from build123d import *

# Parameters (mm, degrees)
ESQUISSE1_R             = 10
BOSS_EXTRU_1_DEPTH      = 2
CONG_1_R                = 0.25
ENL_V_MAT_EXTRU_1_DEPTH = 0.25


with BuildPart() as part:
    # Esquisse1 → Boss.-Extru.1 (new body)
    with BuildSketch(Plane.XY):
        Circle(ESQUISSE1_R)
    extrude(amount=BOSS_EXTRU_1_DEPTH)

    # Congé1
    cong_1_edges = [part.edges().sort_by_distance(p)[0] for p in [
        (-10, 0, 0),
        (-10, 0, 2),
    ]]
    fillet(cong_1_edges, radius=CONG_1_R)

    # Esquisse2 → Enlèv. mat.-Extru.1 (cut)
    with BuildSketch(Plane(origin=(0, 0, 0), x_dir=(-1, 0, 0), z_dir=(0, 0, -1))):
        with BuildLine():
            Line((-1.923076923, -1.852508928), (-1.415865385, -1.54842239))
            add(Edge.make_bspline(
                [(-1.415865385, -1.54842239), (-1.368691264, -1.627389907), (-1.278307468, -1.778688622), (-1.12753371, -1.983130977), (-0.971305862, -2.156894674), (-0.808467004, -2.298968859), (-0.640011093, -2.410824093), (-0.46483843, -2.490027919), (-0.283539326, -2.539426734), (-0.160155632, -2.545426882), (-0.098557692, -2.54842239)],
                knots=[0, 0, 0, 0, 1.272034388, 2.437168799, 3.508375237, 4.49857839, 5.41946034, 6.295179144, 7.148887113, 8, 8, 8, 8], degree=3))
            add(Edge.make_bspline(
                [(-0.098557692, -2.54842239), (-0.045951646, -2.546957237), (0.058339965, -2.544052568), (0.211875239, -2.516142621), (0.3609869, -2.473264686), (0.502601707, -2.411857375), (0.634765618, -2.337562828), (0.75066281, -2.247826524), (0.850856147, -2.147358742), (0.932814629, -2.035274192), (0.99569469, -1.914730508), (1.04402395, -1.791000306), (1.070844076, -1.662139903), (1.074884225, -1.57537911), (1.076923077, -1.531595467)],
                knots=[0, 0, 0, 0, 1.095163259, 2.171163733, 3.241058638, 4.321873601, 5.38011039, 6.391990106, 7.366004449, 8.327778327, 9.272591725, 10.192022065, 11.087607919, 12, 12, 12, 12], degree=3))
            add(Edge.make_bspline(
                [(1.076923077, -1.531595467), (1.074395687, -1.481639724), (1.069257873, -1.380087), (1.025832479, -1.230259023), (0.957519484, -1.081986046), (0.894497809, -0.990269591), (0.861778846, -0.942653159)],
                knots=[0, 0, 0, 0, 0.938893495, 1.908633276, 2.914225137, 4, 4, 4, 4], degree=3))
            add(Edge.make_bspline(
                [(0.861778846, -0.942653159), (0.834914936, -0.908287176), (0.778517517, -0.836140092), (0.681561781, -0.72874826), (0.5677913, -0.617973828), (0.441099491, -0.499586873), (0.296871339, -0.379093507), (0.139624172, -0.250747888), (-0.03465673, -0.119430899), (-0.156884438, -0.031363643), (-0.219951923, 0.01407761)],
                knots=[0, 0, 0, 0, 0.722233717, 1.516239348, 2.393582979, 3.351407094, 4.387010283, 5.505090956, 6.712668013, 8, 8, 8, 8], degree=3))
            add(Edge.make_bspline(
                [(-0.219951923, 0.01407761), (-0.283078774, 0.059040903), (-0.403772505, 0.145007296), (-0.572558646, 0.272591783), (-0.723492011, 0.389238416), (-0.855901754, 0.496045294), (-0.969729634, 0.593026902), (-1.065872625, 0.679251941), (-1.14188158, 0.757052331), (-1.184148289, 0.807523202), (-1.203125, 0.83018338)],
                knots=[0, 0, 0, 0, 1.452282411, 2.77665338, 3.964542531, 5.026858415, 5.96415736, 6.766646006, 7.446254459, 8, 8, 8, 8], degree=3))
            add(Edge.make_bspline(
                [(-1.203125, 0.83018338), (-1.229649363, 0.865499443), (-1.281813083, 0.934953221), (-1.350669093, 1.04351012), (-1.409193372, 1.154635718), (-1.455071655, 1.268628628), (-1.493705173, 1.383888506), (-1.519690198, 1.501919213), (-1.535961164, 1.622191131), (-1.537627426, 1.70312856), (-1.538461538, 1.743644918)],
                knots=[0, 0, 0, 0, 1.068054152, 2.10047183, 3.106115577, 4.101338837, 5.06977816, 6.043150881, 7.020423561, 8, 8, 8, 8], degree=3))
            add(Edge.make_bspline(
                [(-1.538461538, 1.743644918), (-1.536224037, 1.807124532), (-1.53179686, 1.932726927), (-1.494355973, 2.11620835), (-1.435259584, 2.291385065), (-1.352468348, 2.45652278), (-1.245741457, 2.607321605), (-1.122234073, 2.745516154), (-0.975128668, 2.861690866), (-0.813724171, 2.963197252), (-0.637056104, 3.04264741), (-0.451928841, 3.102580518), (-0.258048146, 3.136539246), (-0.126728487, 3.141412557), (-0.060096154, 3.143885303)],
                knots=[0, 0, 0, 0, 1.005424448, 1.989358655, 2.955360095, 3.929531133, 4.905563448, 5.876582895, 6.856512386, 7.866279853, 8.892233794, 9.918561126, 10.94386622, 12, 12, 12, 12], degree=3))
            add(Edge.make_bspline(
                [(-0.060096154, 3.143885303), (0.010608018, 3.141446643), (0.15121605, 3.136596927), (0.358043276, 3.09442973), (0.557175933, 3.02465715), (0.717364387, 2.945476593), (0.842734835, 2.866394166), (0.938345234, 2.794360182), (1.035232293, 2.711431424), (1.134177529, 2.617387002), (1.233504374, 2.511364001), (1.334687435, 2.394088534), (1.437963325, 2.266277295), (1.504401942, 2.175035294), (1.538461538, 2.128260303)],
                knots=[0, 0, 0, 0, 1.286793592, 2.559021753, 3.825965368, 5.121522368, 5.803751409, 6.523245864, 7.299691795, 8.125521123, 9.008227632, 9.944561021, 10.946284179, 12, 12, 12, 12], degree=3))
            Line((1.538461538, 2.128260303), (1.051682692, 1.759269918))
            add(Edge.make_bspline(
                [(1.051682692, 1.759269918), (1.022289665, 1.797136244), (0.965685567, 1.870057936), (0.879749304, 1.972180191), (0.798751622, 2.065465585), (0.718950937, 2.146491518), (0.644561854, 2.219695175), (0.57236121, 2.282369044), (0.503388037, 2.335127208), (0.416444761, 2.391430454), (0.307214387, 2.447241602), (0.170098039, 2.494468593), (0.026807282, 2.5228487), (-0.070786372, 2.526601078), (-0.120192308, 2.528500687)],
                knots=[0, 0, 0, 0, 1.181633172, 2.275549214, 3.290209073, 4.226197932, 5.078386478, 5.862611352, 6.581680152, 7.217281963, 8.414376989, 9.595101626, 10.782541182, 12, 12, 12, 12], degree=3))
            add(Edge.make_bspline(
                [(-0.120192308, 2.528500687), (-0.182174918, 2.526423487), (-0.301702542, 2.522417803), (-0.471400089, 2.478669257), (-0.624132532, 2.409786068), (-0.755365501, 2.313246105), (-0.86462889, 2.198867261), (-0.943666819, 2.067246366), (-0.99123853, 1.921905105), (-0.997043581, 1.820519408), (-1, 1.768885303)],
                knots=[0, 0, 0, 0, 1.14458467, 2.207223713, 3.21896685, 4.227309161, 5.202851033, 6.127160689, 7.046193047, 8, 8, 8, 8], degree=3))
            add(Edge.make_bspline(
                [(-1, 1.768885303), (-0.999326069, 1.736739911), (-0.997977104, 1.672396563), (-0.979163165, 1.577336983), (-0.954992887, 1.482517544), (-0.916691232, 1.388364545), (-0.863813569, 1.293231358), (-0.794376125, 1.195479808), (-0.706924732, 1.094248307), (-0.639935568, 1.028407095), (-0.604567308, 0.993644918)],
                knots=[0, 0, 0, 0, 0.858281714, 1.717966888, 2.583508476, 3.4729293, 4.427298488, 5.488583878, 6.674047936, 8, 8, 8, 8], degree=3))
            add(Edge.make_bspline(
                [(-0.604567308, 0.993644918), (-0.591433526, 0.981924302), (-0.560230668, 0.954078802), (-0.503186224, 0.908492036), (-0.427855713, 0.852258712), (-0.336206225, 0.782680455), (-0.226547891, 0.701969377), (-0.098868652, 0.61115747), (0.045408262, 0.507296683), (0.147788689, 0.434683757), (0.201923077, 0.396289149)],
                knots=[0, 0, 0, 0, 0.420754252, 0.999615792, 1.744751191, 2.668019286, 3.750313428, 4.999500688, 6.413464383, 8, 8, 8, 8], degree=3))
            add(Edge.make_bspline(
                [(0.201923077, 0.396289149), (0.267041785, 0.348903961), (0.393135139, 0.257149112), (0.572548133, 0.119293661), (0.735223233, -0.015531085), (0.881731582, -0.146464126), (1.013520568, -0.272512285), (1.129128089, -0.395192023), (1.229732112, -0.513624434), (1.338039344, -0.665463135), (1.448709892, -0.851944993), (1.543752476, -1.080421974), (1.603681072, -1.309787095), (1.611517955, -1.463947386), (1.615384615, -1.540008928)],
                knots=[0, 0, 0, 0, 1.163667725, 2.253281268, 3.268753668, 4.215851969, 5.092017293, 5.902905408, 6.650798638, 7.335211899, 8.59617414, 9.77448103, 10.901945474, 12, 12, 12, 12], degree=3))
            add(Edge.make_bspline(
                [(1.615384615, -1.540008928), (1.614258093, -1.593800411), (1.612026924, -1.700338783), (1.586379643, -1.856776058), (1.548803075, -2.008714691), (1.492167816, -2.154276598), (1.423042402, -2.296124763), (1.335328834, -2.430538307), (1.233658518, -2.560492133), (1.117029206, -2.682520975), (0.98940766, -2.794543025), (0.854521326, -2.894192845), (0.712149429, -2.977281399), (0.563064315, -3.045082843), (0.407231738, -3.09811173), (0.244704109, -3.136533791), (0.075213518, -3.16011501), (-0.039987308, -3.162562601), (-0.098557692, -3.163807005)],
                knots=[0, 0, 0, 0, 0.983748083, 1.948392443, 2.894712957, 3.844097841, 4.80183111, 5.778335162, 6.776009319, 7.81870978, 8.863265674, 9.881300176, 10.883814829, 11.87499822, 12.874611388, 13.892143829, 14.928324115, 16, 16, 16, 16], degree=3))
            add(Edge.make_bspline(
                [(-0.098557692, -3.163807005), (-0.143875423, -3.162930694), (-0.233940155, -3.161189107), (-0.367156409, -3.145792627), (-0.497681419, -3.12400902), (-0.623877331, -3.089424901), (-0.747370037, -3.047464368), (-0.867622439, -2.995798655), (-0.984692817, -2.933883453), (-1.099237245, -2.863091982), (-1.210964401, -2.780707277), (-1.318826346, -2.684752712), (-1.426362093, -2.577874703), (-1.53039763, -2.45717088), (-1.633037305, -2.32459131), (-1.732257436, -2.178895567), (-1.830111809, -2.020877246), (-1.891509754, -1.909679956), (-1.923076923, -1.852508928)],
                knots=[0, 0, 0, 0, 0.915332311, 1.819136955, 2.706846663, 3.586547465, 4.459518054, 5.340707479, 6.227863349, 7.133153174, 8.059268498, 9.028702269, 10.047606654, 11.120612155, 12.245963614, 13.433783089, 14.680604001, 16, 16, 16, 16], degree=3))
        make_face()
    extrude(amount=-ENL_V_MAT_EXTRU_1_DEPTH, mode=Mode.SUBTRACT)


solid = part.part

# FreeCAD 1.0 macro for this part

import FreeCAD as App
import Part
import Sketcher


def edges_at(feature, points):
    """Names of the edges that pass closest to the given points."""
    edges = feature.Shape.Edges
    near = lambda p: min(range(len(edges)), key=lambda i: edges[i].distToShape(Part.Vertex(*p))[0])
    return sorted({f"Edge{near(p) + 1}" for p in points})

doc = App.newDocument("Part")
body = doc.addObject("PartDesign::Body", "Body")

# Sketch on XY plane
sketch1 = body.newObject("Sketcher::SketchObject", "Sketch")
sketch1.AttachmentSupport = (doc.getObject("XY_Plane"), [""])
sketch1.MapMode = "FlatFace"
sketch1.addGeometry(Part.Circle(App.Vector(0, 0, 0), App.Vector(0, 0, 1), 10), False)
sketch1.addConstraint(Sketcher.Constraint("Coincident", 0, 3, -1, 1))
sketch1.addConstraint(Sketcher.Constraint("Diameter", 0, 20.0))
pad1 = body.newObject("PartDesign::Pad", "Pad")
pad1.Profile = sketch1
pad1.Length = 2
doc.recompute()

fillet = body.newObject("PartDesign::Fillet", "Fillet")
fillet.Base = (pad1, edges_at(pad1, [(-10, 0, 0), (-10, 0, 2)]))
fillet.Radius = 0.25

# Sketch on XY plane
sketch2 = body.newObject("Sketcher::SketchObject", "Sketch001")
sketch2.AttachmentSupport = (doc.getObject("XY_Plane"), [""])
sketch2.MapMode = "FlatFace"
sketch2.addGeometry(Part.LineSegment(App.Vector(1.415865, -1.548422, 0), App.Vector(1.923077, -1.852509, 0)), False)
sketch2.addGeometry(Part.BSplineCurve([App.Vector(0.098558, -3.163807, 0), App.Vector(0.143875, -3.162931, 0), App.Vector(0.23394, -3.161189, 0), App.Vector(0.367156, -3.145793, 0), App.Vector(0.497681, -3.124009, 0), App.Vector(0.623877, -3.089425, 0), App.Vector(0.74737, -3.047464, 0), App.Vector(0.867622, -2.995799, 0), App.Vector(0.984693, -2.933883, 0), App.Vector(1.099237, -2.863092, 0), App.Vector(1.210964, -2.780707, 0), App.Vector(1.318826, -2.684753, 0), App.Vector(1.426362, -2.577875, 0), App.Vector(1.530398, -2.457171, 0), App.Vector(1.633037, -2.324591, 0), App.Vector(1.732257, -2.178896, 0), App.Vector(1.830112, -2.020877, 0), App.Vector(1.89151, -1.90968, 0), App.Vector(1.923077, -1.852509, 0)], [4, 1, 1, 1, 1, 1, 1, 1, 1, 1, 1, 1, 1, 1, 1, 1, 4], [0, 0.915332311, 1.819136955, 2.706846663, 3.586547465, 4.459518054, 5.340707479, 6.227863349, 7.133153174, 8.059268498, 9.028702269, 10.047606654, 11.120612155, 12.245963614, 13.433783089, 14.680604001, 16], False, 3, [1, 1, 1, 1, 1, 1, 1, 1, 1, 1, 1, 1, 1, 1, 1, 1, 1, 1, 1], False), False)
sketch2.addGeometry(Part.BSplineCurve([App.Vector(-1.615385, -1.540009, 0), App.Vector(-1.614258, -1.5938, 0), App.Vector(-1.612027, -1.700339, 0), App.Vector(-1.58638, -1.856776, 0), App.Vector(-1.548803, -2.008715, 0), App.Vector(-1.492168, -2.154277, 0), App.Vector(-1.423042, -2.296125, 0), App.Vector(-1.335329, -2.430538, 0), App.Vector(-1.233659, -2.560492, 0), App.Vector(-1.117029, -2.682521, 0), App.Vector(-0.989408, -2.794543, 0), App.Vector(-0.854521, -2.894193, 0), App.Vector(-0.712149, -2.977281, 0), App.Vector(-0.563064, -3.045083, 0), App.Vector(-0.407232, -3.098112, 0), App.Vector(-0.244704, -3.136534, 0), App.Vector(-0.075214, -3.160115, 0), App.Vector(0.039987, -3.162563, 0), App.Vector(0.098558, -3.163807, 0)], [4, 1, 1, 1, 1, 1, 1, 1, 1, 1, 1, 1, 1, 1, 1, 1, 4], [0, 0.983748083, 1.948392443, 2.894712957, 3.844097841, 4.80183111, 5.778335162, 6.776009319, 7.81870978, 8.863265674, 9.881300176, 10.883814829, 11.87499822, 12.874611388, 13.892143829, 14.928324115, 16], False, 3, [1, 1, 1, 1, 1, 1, 1, 1, 1, 1, 1, 1, 1, 1, 1, 1, 1, 1, 1], False), False)
sketch2.addGeometry(Part.BSplineCurve([App.Vector(-0.201923, 0.396289, 0), App.Vector(-0.267042, 0.348904, 0), App.Vector(-0.393135, 0.257149, 0), App.Vector(-0.572548, 0.119294, 0), App.Vector(-0.735223, -0.015531, 0), App.Vector(-0.881732, -0.146464, 0), App.Vector(-1.013521, -0.272512, 0), App.Vector(-1.129128, -0.395192, 0), App.Vector(-1.229732, -0.513624, 0), App.Vector(-1.338039, -0.665463, 0), App.Vector(-1.44871, -0.851945, 0), App.Vector(-1.543752, -1.080422, 0), App.Vector(-1.603681, -1.309787, 0), App.Vector(-1.611518, -1.463947, 0), App.Vector(-1.615385, -1.540009, 0)], [4, 1, 1, 1, 1, 1, 1, 1, 1, 1, 1, 1, 4], [0, 1.163667725, 2.253281268, 3.268753668, 4.215851969, 5.092017293, 5.902905408, 6.650798638, 7.335211899, 8.59617414, 9.77448103, 10.901945474, 12], False, 3, [1, 1, 1, 1, 1, 1, 1, 1, 1, 1, 1, 1, 1, 1, 1], False), False)
sketch2.addGeometry(Part.BSplineCurve([App.Vector(0.604567, 0.993645, 0), App.Vector(0.591434, 0.981924, 0), App.Vector(0.560231, 0.954079, 0), App.Vector(0.503186, 0.908492, 0), App.Vector(0.427856, 0.852259, 0), App.Vector(0.336206, 0.78268, 0), App.Vector(0.226548, 0.701969, 0), App.Vector(0.098869, 0.611157, 0), App.Vector(-0.045408, 0.507297, 0), App.Vector(-0.147789, 0.434684, 0), App.Vector(-0.201923, 0.396289, 0)], [4, 1, 1, 1, 1, 1, 1, 1, 4], [0, 0.420754252, 0.999615792, 1.744751191, 2.668019286, 3.750313428, 4.999500688, 6.413464383, 8], False, 3, [1, 1, 1, 1, 1, 1, 1, 1, 1, 1, 1], False), False)
sketch2.addGeometry(Part.BSplineCurve([App.Vector(1, 1.768885, 0), App.Vector(0.999326, 1.73674, 0), App.Vector(0.997977, 1.672397, 0), App.Vector(0.979163, 1.577337, 0), App.Vector(0.954993, 1.482518, 0), App.Vector(0.916691, 1.388365, 0), App.Vector(0.863814, 1.293231, 0), App.Vector(0.794376, 1.19548, 0), App.Vector(0.706925, 1.094248, 0), App.Vector(0.639936, 1.028407, 0), App.Vector(0.604567, 0.993645, 0)], [4, 1, 1, 1, 1, 1, 1, 1, 4], [0, 0.858281714, 1.717966888, 2.583508476, 3.4729293, 4.427298488, 5.488583878, 6.674047936, 8], False, 3, [1, 1, 1, 1, 1, 1, 1, 1, 1, 1, 1], False), False)
sketch2.addGeometry(Part.BSplineCurve([App.Vector(0.120192, 2.528501, 0), App.Vector(0.182175, 2.526423, 0), App.Vector(0.301703, 2.522418, 0), App.Vector(0.4714, 2.478669, 0), App.Vector(0.624133, 2.409786, 0), App.Vector(0.755366, 2.313246, 0), App.Vector(0.864629, 2.198867, 0), App.Vector(0.943667, 2.067246, 0), App.Vector(0.991239, 1.921905, 0), App.Vector(0.997044, 1.820519, 0), App.Vector(1, 1.768885, 0)], [4, 1, 1, 1, 1, 1, 1, 1, 4], [0, 1.14458467, 2.207223713, 3.21896685, 4.227309161, 5.202851033, 6.127160689, 7.046193047, 8], False, 3, [1, 1, 1, 1, 1, 1, 1, 1, 1, 1, 1], False), False)
sketch2.addGeometry(Part.BSplineCurve([App.Vector(-1.051683, 1.75927, 0), App.Vector(-1.02229, 1.797136, 0), App.Vector(-0.965686, 1.870058, 0), App.Vector(-0.879749, 1.97218, 0), App.Vector(-0.798752, 2.065466, 0), App.Vector(-0.718951, 2.146492, 0), App.Vector(-0.644562, 2.219695, 0), App.Vector(-0.572361, 2.282369, 0), App.Vector(-0.503388, 2.335127, 0), App.Vector(-0.416445, 2.39143, 0), App.Vector(-0.307214, 2.447242, 0), App.Vector(-0.170098, 2.494469, 0), App.Vector(-0.026807, 2.522849, 0), App.Vector(0.070786, 2.526601, 0), App.Vector(0.120192, 2.528501, 0)], [4, 1, 1, 1, 1, 1, 1, 1, 1, 1, 1, 1, 4], [0, 1.181633172, 2.275549214, 3.290209073, 4.226197932, 5.078386478, 5.862611352, 6.581680152, 7.217281963, 8.414376989, 9.595101626, 10.782541182, 12], False, 3, [1, 1, 1, 1, 1, 1, 1, 1, 1, 1, 1, 1, 1, 1, 1], False), False)
sketch2.addGeometry(Part.LineSegment(App.Vector(-1.051683, 1.75927, 0), App.Vector(-1.538462, 2.12826, 0)), False)
sketch2.addGeometry(Part.BSplineCurve([App.Vector(0.060096, 3.143885, 0), App.Vector(-0.010608, 3.141447, 0), App.Vector(-0.151216, 3.136597, 0), App.Vector(-0.358043, 3.09443, 0), App.Vector(-0.557176, 3.024657, 0), App.Vector(-0.717364, 2.945477, 0), App.Vector(-0.842735, 2.866394, 0), App.Vector(-0.938345, 2.79436, 0), App.Vector(-1.035232, 2.711431, 0), App.Vector(-1.134178, 2.617387, 0), App.Vector(-1.233504, 2.511364, 0), App.Vector(-1.334687, 2.394089, 0), App.Vector(-1.437963, 2.266277, 0), App.Vector(-1.504402, 2.175035, 0), App.Vector(-1.538462, 2.12826, 0)], [4, 1, 1, 1, 1, 1, 1, 1, 1, 1, 1, 1, 4], [0, 1.286793592, 2.559021753, 3.825965368, 5.121522368, 5.803751409, 6.523245864, 7.299691795, 8.125521123, 9.008227632, 9.944561021, 10.946284179, 12], False, 3, [1, 1, 1, 1, 1, 1, 1, 1, 1, 1, 1, 1, 1, 1, 1], False), False)
sketch2.addGeometry(Part.BSplineCurve([App.Vector(1.538462, 1.743645, 0), App.Vector(1.536224, 1.807125, 0), App.Vector(1.531797, 1.932727, 0), App.Vector(1.494356, 2.116208, 0), App.Vector(1.43526, 2.291385, 0), App.Vector(1.352468, 2.456523, 0), App.Vector(1.245741, 2.607322, 0), App.Vector(1.122234, 2.745516, 0), App.Vector(0.975129, 2.861691, 0), App.Vector(0.813724, 2.963197, 0), App.Vector(0.637056, 3.042647, 0), App.Vector(0.451929, 3.102581, 0), App.Vector(0.258048, 3.136539, 0), App.Vector(0.126728, 3.141413, 0), App.Vector(0.060096, 3.143885, 0)], [4, 1, 1, 1, 1, 1, 1, 1, 1, 1, 1, 1, 4], [0, 1.005424448, 1.989358655, 2.955360095, 3.929531133, 4.905563448, 5.876582895, 6.856512386, 7.866279853, 8.892233794, 9.918561126, 10.94386622, 12], False, 3, [1, 1, 1, 1, 1, 1, 1, 1, 1, 1, 1, 1, 1, 1, 1], False), False)
sketch2.addGeometry(Part.BSplineCurve([App.Vector(1.203125, 0.830183, 0), App.Vector(1.229649, 0.865499, 0), App.Vector(1.281813, 0.934953, 0), App.Vector(1.350669, 1.04351, 0), App.Vector(1.409193, 1.154636, 0), App.Vector(1.455072, 1.268629, 0), App.Vector(1.493705, 1.383889, 0), App.Vector(1.51969, 1.501919, 0), App.Vector(1.535961, 1.622191, 0), App.Vector(1.537627, 1.703129, 0), App.Vector(1.538462, 1.743645, 0)], [4, 1, 1, 1, 1, 1, 1, 1, 4], [0, 1.068054152, 2.10047183, 3.106115577, 4.101338837, 5.06977816, 6.043150881, 7.020423561, 8], False, 3, [1, 1, 1, 1, 1, 1, 1, 1, 1, 1, 1], False), False)
sketch2.addGeometry(Part.BSplineCurve([App.Vector(0.219952, 0.014078, 0), App.Vector(0.283079, 0.059041, 0), App.Vector(0.403773, 0.145007, 0), App.Vector(0.572559, 0.272592, 0), App.Vector(0.723492, 0.389238, 0), App.Vector(0.855902, 0.496045, 0), App.Vector(0.96973, 0.593027, 0), App.Vector(1.065873, 0.679252, 0), App.Vector(1.141882, 0.757052, 0), App.Vector(1.184148, 0.807523, 0), App.Vector(1.203125, 0.830183, 0)], [4, 1, 1, 1, 1, 1, 1, 1, 4], [0, 1.452282411, 2.77665338, 3.964542531, 5.026858415, 5.96415736, 6.766646006, 7.446254459, 8], False, 3, [1, 1, 1, 1, 1, 1, 1, 1, 1, 1, 1], False), False)
sketch2.addGeometry(Part.BSplineCurve([App.Vector(-0.861779, -0.942653, 0), App.Vector(-0.834915, -0.908287, 0), App.Vector(-0.778518, -0.83614, 0), App.Vector(-0.681562, -0.728748, 0), App.Vector(-0.567791, -0.617974, 0), App.Vector(-0.441099, -0.499587, 0), App.Vector(-0.296871, -0.379094, 0), App.Vector(-0.139624, -0.250748, 0), App.Vector(0.034657, -0.119431, 0), App.Vector(0.156884, -0.031364, 0), App.Vector(0.219952, 0.014078, 0)], [4, 1, 1, 1, 1, 1, 1, 1, 4], [0, 0.722233717, 1.516239348, 2.393582979, 3.351407094, 4.387010283, 5.505090956, 6.712668013, 8], False, 3, [1, 1, 1, 1, 1, 1, 1, 1, 1, 1, 1], False), False)
sketch2.addGeometry(Part.BSplineCurve([App.Vector(-1.076923, -1.531595, 0), App.Vector(-1.074396, -1.48164, 0), App.Vector(-1.069258, -1.380087, 0), App.Vector(-1.025832, -1.230259, 0), App.Vector(-0.957519, -1.081986, 0), App.Vector(-0.894498, -0.99027, 0), App.Vector(-0.861779, -0.942653, 0)], [4, 1, 1, 1, 4], [0, 0.938893495, 1.908633276, 2.914225137, 4], False, 3, [1, 1, 1, 1, 1, 1, 1], False), False)
sketch2.addGeometry(Part.BSplineCurve([App.Vector(0.098558, -2.548422, 0), App.Vector(0.045952, -2.546957, 0), App.Vector(-0.05834, -2.544053, 0), App.Vector(-0.211875, -2.516143, 0), App.Vector(-0.360987, -2.473265, 0), App.Vector(-0.502602, -2.411857, 0), App.Vector(-0.634766, -2.337563, 0), App.Vector(-0.750663, -2.247827, 0), App.Vector(-0.850856, -2.147359, 0), App.Vector(-0.932815, -2.035274, 0), App.Vector(-0.995695, -1.914731, 0), App.Vector(-1.044024, -1.791, 0), App.Vector(-1.070844, -1.66214, 0), App.Vector(-1.074884, -1.575379, 0), App.Vector(-1.076923, -1.531595, 0)], [4, 1, 1, 1, 1, 1, 1, 1, 1, 1, 1, 1, 4], [0, 1.095163259, 2.171163733, 3.241058638, 4.321873601, 5.38011039, 6.391990106, 7.366004449, 8.327778327, 9.272591725, 10.192022065, 11.087607919, 12], False, 3, [1, 1, 1, 1, 1, 1, 1, 1, 1, 1, 1, 1, 1, 1, 1], False), False)
sketch2.addGeometry(Part.BSplineCurve([App.Vector(1.415865, -1.548422, 0), App.Vector(1.368691, -1.62739, 0), App.Vector(1.278307, -1.778689, 0), App.Vector(1.127534, -1.983131, 0), App.Vector(0.971306, -2.156895, 0), App.Vector(0.808467, -2.298969, 0), App.Vector(0.640011, -2.410824, 0), App.Vector(0.464838, -2.490028, 0), App.Vector(0.283539, -2.539427, 0), App.Vector(0.160156, -2.545427, 0), App.Vector(0.098558, -2.548422, 0)], [4, 1, 1, 1, 1, 1, 1, 1, 4], [0, 1.272034388, 2.437168799, 3.508375237, 4.49857839, 5.41946034, 6.295179144, 7.148887113, 8], False, 3, [1, 1, 1, 1, 1, 1, 1, 1, 1, 1, 1], False), False)
sketch2.addConstraint(Sketcher.Constraint("Block", 1))
sketch2.addConstraint(Sketcher.Constraint("Block", 2))
sketch2.addConstraint(Sketcher.Constraint("Block", 3))
sketch2.addConstraint(Sketcher.Constraint("Block", 4))
sketch2.addConstraint(Sketcher.Constraint("Block", 5))
sketch2.addConstraint(Sketcher.Constraint("Block", 6))
sketch2.addConstraint(Sketcher.Constraint("Block", 7))
sketch2.addConstraint(Sketcher.Constraint("Block", 9))
sketch2.addConstraint(Sketcher.Constraint("Block", 10))
sketch2.addConstraint(Sketcher.Constraint("Block", 11))
sketch2.addConstraint(Sketcher.Constraint("Block", 12))
sketch2.addConstraint(Sketcher.Constraint("Block", 13))
sketch2.addConstraint(Sketcher.Constraint("Block", 14))
sketch2.addConstraint(Sketcher.Constraint("Block", 15))
sketch2.addConstraint(Sketcher.Constraint("Block", 16))
sketch2.addConstraint(Sketcher.Constraint("Coincident", 0, 2, 1, 2))
sketch2.addConstraint(Sketcher.Constraint("Coincident", 7, 1, 8, 1))
sketch2.addConstraint(Sketcher.Constraint("Coincident", 8, 2, 9, 2))
sketch2.addConstraint(Sketcher.Constraint("Coincident", 16, 1, 0, 1))
pocket1 = body.newObject("PartDesign::Pocket", "Pocket")
pocket1.Profile = sketch2
pocket1.Length = 0.25
pocket1.Reversed = True

doc.recompute()
